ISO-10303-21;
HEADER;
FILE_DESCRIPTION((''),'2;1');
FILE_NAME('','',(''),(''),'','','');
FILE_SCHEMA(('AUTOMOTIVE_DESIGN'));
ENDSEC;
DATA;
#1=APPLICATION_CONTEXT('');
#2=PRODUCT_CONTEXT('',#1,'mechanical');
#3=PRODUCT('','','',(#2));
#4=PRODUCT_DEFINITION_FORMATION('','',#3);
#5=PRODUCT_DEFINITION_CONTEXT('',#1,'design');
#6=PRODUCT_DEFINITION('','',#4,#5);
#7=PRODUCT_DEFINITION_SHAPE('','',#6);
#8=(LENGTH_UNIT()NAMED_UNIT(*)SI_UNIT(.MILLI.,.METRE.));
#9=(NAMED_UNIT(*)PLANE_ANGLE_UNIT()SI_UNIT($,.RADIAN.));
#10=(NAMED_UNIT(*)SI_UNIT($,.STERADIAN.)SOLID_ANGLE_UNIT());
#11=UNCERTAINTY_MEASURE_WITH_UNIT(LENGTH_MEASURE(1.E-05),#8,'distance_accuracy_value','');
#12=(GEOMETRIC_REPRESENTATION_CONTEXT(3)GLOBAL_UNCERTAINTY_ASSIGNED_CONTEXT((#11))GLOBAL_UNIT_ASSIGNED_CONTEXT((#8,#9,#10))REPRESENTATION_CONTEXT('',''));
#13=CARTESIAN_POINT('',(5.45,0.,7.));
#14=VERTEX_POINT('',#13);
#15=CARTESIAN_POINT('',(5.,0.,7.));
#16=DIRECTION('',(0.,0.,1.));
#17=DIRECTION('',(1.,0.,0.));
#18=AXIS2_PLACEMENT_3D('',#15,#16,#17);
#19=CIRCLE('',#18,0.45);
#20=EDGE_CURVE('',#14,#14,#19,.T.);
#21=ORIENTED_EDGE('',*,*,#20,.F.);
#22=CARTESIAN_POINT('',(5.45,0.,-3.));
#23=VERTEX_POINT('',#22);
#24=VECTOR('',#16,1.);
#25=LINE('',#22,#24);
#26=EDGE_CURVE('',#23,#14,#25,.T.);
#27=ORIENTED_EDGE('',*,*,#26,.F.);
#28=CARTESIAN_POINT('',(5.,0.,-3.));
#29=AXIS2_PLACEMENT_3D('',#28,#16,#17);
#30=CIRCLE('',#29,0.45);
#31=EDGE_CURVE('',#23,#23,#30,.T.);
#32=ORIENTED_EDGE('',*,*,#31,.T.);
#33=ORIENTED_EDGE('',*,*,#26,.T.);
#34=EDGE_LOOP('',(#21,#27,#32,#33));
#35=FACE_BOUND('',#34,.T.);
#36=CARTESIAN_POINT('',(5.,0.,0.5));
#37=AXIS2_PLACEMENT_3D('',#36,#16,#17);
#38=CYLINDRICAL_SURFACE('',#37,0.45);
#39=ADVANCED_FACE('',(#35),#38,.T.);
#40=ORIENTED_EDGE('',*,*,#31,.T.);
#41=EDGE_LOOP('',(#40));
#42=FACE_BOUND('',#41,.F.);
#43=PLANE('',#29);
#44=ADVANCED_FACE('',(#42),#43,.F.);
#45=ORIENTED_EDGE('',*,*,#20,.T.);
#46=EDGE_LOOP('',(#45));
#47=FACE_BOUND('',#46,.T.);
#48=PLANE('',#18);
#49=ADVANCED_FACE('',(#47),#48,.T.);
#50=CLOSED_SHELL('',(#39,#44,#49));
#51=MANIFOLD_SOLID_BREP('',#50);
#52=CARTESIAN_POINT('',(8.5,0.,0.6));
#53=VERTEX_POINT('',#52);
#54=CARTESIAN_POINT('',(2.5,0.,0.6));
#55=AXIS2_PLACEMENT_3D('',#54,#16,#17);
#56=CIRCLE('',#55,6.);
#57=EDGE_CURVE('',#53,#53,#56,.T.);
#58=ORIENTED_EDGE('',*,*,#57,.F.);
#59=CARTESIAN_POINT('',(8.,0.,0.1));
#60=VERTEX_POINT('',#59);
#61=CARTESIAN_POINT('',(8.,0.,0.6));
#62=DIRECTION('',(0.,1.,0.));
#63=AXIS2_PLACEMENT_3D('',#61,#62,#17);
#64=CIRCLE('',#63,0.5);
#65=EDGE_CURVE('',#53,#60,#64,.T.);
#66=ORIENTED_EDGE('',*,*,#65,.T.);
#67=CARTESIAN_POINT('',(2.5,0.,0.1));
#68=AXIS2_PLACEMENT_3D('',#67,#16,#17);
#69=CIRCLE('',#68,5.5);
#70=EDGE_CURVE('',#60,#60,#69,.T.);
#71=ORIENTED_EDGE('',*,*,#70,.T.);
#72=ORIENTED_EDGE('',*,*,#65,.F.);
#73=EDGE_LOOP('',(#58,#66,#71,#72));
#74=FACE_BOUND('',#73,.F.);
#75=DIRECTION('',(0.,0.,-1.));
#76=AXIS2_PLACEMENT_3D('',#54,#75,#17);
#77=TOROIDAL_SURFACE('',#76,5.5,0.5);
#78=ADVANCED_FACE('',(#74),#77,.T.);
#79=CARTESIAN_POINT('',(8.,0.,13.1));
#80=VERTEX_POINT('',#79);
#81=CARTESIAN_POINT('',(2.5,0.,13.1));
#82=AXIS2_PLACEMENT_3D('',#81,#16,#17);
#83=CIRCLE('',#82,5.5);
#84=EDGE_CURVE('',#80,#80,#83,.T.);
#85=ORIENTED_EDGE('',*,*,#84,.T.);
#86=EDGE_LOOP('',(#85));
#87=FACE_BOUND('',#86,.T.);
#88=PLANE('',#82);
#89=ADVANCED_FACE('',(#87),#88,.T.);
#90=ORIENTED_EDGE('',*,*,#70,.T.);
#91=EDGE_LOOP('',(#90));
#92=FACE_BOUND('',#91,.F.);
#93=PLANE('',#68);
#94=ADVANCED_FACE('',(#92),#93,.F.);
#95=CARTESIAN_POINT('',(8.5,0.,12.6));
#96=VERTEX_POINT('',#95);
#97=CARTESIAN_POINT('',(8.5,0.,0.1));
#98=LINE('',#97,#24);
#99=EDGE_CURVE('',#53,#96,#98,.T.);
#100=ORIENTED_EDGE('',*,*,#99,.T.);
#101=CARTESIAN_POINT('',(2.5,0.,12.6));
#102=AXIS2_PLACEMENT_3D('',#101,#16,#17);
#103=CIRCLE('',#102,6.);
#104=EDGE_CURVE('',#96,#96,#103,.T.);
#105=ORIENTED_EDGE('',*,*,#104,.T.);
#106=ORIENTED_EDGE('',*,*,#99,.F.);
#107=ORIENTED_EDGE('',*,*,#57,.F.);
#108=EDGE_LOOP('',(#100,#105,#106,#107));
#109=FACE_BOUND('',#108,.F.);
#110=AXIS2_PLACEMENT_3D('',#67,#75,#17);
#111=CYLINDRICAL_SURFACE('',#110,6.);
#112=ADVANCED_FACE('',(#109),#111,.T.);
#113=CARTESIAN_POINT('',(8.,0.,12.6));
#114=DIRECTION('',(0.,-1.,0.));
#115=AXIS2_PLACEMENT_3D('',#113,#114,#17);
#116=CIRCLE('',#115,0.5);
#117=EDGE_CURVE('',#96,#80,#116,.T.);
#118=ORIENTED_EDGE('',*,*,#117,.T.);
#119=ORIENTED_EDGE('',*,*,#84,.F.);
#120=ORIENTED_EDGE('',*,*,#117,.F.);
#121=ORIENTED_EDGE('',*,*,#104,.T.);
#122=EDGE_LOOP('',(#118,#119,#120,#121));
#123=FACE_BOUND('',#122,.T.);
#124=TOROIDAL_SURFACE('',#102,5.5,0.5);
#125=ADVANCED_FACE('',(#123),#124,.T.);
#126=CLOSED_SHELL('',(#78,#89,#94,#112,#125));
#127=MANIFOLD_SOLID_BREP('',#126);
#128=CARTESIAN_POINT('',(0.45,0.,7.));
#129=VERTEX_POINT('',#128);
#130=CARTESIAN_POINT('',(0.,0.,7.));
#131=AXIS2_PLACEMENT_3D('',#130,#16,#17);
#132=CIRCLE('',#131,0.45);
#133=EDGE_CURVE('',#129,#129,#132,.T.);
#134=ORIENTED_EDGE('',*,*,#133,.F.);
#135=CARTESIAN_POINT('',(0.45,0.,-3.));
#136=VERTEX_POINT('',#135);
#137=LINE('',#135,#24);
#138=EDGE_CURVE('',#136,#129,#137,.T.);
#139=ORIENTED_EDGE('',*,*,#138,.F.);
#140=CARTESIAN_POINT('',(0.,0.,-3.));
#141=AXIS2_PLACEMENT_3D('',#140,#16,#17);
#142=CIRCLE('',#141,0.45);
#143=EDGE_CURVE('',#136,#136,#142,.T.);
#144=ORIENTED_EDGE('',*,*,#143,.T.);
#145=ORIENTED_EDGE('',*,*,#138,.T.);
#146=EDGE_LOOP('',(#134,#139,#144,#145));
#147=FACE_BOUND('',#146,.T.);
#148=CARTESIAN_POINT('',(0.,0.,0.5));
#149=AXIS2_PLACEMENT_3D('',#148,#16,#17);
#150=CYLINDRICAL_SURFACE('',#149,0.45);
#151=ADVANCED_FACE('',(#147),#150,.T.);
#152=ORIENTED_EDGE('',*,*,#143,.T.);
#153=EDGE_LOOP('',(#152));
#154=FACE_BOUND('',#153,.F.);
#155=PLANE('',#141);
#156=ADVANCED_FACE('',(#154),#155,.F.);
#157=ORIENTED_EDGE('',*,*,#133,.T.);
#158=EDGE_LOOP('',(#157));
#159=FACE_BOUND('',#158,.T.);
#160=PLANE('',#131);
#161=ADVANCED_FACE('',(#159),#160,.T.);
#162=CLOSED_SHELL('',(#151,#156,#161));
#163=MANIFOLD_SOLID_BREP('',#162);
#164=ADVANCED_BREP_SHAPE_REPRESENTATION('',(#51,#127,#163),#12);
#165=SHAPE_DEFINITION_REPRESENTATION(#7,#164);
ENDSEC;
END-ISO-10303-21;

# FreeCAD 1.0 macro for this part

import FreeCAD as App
import Part
import Sketcher

V = App.Vector
Q = App.Units.Quantity


def edges_at(feature, points):
    """Names of the edges that pass closest to the given points."""
    edges = feature.Shape.Edges
    near = lambda p: min(range(len(edges)), key=lambda i: edges[i].distToShape(Part.Vertex(*p))[0])
    return sorted({f"Edge{near(p) + 1}" for p in points})

doc = App.newDocument("Part")
body = doc.addObject("PartDesign::Body", "Body")
body.AllowCompound = True

sketch1 = body.newObject("Sketcher::SketchObject", "Sketch")
sketch1.AttachmentSupport = (doc.getObject("XY_Plane"), [""])
sketch1.MapMode = "FlatFace"
sketch1.AttachmentOffset = App.Placement(V(0, 0, 0.5), App.Rotation())
sketch1.addGeometry([
    Part.Circle(V(0, 0, 0), V(0, 0, 1), 0.45),
    Part.Circle(V(5, 0, 0), V(0, 0, 1), 0.45),
], False)
sketch1.addConstraint([
    Sketcher.Constraint("Coincident", 0, 3, -1, 1),
    Sketcher.Constraint("Equal", 0, 1),
    Sketcher.Constraint("PointOnObject", 1, 3, -1),
    Sketcher.Constraint("Diameter", 0, Q("0.9 mm")),
    Sketcher.Constraint("DistanceX", -1, 1, 1, 3, Q("5 mm")),
])
pad1 = body.newObject("PartDesign::Pad", "Pad")
pad1.Profile = sketch1
pad1.Type = "TwoLengths"
pad1.Length = 6.5
pad1.Length2 = 3.5
body2 = doc.addObject("PartDesign::Body", "Body001")

sketch2 = body2.newObject("Sketcher::SketchObject", "Sketch001")
sketch2.AttachmentSupport = (doc.getObject("XY_Plane001"), [""])
sketch2.MapMode = "FlatFace"
sketch2.AttachmentOffset = App.Placement(V(0, 0, 0.1), App.Rotation())
sketch2.addGeometry(Part.Circle(V(2, 0, 0), V(0, 0, 1), 6), False)
sketch2.addConstraint([
    Sketcher.Constraint("PointOnObject", 0, 3, -1),
    Sketcher.Constraint("Diameter", 0, Q("12 mm")),
    Sketcher.Constraint("DistanceX", -1, 1, 0, 3, Q("2.5 mm")),
])
pad2 = body2.newObject("PartDesign::Pad", "Pad001")
pad2.Profile = sketch2
pad2.Length = 13
doc.recompute()

fillet = body2.newObject("PartDesign::Fillet", "Fillet")
fillet.Base = (pad2, edges_at(pad2, [(-3.5, 0, 0.1), (-3.5, 0, 13.1)]))
fillet.Radius = 0.5

doc.recompute()
